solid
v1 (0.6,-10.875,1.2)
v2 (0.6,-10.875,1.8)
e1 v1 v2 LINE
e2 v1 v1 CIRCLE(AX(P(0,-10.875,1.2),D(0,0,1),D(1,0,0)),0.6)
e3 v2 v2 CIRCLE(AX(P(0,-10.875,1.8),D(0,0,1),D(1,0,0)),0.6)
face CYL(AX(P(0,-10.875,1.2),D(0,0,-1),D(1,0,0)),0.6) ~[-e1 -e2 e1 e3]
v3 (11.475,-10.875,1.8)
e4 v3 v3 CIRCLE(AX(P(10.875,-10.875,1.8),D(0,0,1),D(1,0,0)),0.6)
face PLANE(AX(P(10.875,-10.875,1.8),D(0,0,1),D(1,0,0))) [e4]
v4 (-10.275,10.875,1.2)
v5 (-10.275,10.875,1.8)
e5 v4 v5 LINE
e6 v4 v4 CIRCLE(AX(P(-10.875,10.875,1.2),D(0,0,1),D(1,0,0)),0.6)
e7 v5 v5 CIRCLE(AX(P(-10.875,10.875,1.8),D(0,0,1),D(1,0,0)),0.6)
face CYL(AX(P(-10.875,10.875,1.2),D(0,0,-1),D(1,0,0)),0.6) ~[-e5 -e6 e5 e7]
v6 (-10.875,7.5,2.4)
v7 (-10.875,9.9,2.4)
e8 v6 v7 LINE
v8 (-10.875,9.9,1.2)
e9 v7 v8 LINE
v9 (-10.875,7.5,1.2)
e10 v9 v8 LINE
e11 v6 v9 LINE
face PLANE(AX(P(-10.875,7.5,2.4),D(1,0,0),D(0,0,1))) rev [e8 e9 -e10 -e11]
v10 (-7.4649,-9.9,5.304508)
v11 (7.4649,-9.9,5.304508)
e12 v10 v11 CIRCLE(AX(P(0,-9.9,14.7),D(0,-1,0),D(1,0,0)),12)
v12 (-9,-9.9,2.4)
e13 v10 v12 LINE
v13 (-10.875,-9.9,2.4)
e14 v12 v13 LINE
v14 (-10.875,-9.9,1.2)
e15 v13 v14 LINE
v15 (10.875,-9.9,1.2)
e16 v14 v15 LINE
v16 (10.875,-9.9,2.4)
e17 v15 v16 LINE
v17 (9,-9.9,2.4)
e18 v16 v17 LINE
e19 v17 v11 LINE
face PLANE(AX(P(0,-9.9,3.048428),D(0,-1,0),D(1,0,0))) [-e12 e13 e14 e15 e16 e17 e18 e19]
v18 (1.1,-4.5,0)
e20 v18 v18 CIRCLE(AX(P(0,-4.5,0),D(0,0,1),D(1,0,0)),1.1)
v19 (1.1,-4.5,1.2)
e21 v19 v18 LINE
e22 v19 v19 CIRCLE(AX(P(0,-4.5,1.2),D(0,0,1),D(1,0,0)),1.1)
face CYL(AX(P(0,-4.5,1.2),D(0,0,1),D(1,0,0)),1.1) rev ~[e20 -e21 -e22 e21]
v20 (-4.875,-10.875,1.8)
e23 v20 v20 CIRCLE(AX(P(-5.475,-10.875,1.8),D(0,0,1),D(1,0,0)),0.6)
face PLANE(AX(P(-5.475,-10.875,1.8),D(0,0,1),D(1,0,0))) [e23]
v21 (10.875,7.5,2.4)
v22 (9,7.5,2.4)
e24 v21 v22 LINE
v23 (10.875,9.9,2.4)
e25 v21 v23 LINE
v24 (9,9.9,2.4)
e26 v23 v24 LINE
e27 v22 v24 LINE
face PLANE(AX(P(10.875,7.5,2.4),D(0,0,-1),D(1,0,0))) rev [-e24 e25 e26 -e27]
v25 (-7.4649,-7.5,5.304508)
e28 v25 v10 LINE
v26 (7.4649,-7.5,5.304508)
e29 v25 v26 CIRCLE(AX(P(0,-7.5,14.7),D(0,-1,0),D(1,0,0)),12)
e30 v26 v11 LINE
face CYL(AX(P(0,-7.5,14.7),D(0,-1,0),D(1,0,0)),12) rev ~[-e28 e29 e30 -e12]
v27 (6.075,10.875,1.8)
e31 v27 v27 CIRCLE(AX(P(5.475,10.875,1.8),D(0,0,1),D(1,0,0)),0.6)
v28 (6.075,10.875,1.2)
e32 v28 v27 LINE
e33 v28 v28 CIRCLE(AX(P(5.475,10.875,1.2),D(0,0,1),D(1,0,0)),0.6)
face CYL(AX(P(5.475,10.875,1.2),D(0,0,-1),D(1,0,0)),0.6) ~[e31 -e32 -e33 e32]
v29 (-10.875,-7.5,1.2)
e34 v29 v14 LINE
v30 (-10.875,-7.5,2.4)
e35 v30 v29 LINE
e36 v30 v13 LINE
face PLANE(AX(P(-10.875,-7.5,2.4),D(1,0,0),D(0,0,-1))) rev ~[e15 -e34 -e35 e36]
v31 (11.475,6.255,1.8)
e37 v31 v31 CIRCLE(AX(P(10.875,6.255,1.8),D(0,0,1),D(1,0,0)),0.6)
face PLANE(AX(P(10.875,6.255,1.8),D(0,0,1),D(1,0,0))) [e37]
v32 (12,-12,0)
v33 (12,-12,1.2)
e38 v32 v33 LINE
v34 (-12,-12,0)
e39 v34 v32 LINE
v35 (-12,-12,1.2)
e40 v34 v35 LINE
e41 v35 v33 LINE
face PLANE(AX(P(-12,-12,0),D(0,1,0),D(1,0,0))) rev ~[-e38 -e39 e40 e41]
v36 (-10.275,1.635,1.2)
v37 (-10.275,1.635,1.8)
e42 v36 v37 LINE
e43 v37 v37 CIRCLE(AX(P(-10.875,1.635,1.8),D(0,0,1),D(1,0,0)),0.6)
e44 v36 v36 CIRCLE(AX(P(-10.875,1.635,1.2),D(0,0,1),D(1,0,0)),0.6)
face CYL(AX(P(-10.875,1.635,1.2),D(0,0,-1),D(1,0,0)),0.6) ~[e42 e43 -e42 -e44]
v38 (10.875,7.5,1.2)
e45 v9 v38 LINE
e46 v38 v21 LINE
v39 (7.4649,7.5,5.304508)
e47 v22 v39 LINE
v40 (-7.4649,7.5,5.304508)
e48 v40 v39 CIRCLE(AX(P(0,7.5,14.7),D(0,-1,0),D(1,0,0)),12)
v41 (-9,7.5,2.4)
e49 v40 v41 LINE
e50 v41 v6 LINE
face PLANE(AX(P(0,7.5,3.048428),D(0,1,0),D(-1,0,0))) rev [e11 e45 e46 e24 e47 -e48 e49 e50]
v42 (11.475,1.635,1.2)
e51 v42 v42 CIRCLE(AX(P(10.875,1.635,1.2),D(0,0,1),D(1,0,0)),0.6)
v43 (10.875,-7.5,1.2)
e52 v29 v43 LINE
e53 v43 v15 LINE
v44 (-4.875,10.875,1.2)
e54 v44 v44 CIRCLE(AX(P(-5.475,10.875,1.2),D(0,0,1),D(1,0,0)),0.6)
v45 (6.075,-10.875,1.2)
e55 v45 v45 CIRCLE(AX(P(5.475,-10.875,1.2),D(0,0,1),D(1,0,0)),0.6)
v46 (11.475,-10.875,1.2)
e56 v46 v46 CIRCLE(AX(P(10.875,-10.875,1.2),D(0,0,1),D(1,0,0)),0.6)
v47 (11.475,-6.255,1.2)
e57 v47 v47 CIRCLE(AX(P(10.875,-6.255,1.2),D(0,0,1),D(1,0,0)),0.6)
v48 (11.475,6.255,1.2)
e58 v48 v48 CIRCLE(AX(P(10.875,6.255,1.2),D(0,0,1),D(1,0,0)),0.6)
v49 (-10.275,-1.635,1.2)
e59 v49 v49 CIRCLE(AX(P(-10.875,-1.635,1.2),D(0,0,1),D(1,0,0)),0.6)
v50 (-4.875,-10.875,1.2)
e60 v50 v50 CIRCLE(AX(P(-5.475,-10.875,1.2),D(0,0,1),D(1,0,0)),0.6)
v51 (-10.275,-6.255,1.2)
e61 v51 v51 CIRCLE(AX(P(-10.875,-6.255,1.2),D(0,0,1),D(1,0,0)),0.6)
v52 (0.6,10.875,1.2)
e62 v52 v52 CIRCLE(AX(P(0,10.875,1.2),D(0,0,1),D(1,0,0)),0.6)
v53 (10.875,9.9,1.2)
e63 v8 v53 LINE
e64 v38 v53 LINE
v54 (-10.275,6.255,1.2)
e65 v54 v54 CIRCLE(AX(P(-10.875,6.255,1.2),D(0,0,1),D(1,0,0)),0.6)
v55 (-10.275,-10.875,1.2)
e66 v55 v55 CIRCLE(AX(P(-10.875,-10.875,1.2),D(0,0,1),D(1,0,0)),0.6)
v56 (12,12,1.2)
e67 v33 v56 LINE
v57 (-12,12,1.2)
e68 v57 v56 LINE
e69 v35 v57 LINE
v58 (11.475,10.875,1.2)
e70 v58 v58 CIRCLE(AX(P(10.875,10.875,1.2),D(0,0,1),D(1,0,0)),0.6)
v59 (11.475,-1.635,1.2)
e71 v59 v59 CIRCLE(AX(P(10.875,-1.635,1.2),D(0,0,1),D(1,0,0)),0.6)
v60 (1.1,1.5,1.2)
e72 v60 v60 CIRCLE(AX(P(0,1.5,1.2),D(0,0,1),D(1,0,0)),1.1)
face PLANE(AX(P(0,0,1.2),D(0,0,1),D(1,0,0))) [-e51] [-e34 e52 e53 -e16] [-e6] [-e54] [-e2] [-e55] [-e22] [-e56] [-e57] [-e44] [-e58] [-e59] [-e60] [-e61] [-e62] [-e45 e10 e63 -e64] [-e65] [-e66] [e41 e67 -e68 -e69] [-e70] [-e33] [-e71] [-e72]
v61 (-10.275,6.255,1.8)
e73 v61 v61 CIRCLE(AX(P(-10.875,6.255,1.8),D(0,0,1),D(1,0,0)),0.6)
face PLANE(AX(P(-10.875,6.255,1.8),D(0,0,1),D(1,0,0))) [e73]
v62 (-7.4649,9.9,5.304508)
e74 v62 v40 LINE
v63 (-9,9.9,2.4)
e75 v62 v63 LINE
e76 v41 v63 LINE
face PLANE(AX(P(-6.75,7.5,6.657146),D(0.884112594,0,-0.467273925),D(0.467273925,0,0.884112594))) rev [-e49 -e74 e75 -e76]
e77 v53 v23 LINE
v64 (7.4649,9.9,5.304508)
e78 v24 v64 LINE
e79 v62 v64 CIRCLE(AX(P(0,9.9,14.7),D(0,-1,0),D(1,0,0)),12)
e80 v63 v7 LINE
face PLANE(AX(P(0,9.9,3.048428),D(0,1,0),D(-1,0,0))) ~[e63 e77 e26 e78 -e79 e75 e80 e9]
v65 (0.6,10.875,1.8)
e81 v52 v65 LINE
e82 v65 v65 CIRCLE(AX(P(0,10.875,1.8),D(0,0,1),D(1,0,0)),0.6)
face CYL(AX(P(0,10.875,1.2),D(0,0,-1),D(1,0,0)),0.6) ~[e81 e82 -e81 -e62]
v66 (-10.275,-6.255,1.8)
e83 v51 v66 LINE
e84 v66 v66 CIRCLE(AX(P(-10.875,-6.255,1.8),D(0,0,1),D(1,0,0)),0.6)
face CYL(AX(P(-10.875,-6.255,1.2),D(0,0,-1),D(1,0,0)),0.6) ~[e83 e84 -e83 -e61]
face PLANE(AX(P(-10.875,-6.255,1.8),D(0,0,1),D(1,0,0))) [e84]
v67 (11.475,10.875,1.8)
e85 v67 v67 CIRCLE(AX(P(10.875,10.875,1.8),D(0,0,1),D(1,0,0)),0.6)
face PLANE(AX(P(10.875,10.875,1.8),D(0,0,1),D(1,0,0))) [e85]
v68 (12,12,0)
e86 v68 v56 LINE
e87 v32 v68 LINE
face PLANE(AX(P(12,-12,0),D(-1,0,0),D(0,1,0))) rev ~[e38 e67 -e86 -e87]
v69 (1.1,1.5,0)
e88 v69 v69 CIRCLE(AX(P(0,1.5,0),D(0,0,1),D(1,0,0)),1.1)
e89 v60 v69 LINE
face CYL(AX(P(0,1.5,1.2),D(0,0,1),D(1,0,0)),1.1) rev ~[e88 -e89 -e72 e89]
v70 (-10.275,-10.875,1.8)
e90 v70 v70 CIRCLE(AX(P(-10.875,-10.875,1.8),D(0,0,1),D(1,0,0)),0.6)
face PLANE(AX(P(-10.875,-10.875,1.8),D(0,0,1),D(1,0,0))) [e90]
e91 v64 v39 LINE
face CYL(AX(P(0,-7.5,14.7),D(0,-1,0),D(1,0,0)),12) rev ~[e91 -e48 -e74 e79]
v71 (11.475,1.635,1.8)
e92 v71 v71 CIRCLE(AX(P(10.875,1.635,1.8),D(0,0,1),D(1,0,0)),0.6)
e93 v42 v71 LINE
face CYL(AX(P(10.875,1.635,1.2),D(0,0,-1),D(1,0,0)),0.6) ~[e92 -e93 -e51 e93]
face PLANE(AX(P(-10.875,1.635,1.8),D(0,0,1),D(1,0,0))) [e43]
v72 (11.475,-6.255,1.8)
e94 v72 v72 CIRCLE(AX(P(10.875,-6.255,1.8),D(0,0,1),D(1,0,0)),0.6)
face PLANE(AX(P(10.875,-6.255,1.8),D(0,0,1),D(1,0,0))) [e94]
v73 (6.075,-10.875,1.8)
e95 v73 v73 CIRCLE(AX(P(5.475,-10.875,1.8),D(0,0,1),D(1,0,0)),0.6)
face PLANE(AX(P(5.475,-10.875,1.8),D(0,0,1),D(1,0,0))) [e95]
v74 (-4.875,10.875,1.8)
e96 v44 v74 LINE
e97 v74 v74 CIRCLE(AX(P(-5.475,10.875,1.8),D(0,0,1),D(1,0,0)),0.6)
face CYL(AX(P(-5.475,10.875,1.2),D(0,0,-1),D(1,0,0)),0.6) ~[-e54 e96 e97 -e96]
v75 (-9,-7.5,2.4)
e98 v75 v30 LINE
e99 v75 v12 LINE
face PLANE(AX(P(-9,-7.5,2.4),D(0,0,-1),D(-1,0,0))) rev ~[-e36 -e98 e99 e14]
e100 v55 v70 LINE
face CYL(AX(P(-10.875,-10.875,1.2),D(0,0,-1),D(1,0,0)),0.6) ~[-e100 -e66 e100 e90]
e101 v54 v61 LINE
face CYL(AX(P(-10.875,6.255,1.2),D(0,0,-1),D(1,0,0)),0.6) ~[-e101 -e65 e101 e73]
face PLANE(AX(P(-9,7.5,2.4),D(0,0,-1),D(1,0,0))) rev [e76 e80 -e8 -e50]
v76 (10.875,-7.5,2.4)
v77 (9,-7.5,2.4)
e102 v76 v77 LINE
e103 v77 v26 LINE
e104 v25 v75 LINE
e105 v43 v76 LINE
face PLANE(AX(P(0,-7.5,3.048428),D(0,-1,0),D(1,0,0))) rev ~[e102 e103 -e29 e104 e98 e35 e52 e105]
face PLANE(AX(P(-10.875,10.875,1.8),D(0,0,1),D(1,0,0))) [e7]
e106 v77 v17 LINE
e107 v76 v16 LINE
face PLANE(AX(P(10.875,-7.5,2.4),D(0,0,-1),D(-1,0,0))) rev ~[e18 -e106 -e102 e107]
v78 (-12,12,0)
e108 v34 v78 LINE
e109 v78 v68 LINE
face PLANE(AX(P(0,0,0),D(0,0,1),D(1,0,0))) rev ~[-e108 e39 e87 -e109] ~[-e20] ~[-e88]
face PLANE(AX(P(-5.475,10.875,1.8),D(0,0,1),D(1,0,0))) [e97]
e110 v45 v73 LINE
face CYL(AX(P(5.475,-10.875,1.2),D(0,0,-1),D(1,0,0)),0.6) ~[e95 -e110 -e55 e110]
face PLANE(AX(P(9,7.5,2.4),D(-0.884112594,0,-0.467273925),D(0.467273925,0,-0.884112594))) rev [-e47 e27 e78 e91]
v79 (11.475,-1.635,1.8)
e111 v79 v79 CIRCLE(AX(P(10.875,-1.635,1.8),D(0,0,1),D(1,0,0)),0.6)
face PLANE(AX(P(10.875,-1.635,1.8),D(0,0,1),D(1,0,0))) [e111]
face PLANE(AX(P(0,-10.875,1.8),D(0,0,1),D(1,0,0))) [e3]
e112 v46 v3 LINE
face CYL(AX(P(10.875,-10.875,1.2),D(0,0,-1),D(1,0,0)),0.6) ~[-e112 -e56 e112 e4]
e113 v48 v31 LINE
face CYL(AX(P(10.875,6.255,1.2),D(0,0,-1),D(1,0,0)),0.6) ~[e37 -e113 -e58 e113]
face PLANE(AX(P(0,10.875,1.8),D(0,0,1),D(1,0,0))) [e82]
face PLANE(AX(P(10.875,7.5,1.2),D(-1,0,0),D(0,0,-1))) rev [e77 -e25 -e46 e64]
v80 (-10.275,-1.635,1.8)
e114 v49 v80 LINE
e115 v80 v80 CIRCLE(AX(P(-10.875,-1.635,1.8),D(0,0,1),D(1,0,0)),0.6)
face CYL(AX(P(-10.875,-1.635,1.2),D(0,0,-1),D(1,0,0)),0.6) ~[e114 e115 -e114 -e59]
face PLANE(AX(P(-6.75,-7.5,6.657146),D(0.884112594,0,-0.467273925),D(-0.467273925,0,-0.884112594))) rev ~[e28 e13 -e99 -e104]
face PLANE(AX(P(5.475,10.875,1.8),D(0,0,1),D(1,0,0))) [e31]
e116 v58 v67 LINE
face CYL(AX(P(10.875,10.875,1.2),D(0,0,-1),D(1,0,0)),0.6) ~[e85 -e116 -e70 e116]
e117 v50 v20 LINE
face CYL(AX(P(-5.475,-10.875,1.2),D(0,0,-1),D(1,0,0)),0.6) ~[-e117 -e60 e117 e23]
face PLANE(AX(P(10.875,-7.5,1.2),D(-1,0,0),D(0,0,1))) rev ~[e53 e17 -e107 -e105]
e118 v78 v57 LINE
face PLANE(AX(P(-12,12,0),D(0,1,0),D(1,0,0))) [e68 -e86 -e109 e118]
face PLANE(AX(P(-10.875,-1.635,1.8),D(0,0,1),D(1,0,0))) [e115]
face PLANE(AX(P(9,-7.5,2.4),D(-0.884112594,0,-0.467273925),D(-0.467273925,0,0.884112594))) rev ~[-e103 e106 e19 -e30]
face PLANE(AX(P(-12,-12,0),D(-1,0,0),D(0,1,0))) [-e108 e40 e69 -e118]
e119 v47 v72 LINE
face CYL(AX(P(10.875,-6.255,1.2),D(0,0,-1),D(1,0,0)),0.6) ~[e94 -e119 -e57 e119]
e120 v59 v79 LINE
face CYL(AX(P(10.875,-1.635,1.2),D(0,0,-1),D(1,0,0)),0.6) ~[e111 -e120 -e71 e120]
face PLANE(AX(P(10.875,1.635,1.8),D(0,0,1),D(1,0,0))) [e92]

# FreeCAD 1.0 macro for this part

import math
import FreeCAD as App
import Part
import Sketcher


def add_polygon(sketch, points):
    """Adds a closed chain of lines whose ends are joined by coincident constraints."""
    first, n = sketch.GeometryCount, len(points)
    for a, b in zip(points, points[1:] + points[:1]):
        sketch.addGeometry(Part.LineSegment(App.Vector(*a, 0), App.Vector(*b, 0)), False)
    for i in range(n):
        sketch.addConstraint(Sketcher.Constraint("Coincident", first + i, 2, first + (i + 1) % n, 1))

doc = App.newDocument("Part")
body = doc.addObject("PartDesign::Body", "Body")

# Sketch on XY plane
sketch1 = body.newObject("Sketcher::SketchObject", "Sketch")
sketch1.AttachmentSupport = (doc.getObject("XY_Plane"), [""])
sketch1.MapMode = "FlatFace"
add_polygon(sketch1, [(-12, 12), (-12, -12), (12, -12), (12, 12)])  # lines 0-3
sketch1.addConstraint(Sketcher.Constraint("Vertical", 0))
sketch1.addConstraint(Sketcher.Constraint("Horizontal", 1))
sketch1.addConstraint(Sketcher.Constraint("Vertical", 2))
sketch1.addConstraint(Sketcher.Constraint("Horizontal", 3))
sketch1.addConstraint(Sketcher.Constraint("Symmetric", 0, 2, 2, 2, -1, 1))
sketch1.addConstraint(Sketcher.Constraint("Equal", 3, 0))
sketch1.addConstraint(Sketcher.Constraint("DistanceX", 1, 1, 1, 2, 24.0))
pad1 = body.newObject("PartDesign::Pad", "Pad")
pad1.Profile = sketch1
pad1.Length = 1.2

# Sketch on XY plane
sketch2 = body.newObject("Sketcher::SketchObject", "Sketch001")
sketch2.AttachmentSupport = (doc.getObject("XY_Plane"), [""])
sketch2.MapMode = "FlatFace"
sketch2.AttachmentOffset = App.Placement(App.Vector(0, 0, 1.2), App.Rotation())
sketch2.addGeometry(Part.Circle(App.Vector(-10.9, 10.9, 0), App.Vector(0, 0, 1), 0.6), False)
sketch2.addGeometry(Part.Circle(App.Vector(-10.9, 6.3, 0), App.Vector(0, 0, 1), 0.6), False)
sketch2.addGeometry(Part.Circle(App.Vector(-10.9, 1.6, 0), App.Vector(0, 0, 1), 0.6), False)
sketch2.addGeometry(Part.Circle(App.Vector(-10.9, -1.6, 0), App.Vector(0, 0, 1), 0.6), False)
sketch2.addGeometry(Part.Circle(App.Vector(-10.9, -6.3, 0), App.Vector(0, 0, 1), 0.6), False)
sketch2.addGeometry(Part.Circle(App.Vector(-10.9, -10.9, 0), App.Vector(0, 0, 1), 0.6), False)
sketch2.addGeometry(Part.Circle(App.Vector(-5.5, 10.9, 0), App.Vector(0, 0, 1), 0.6), False)
sketch2.addGeometry(Part.Circle(App.Vector(0, 10.9, 0), App.Vector(0, 0, 1), 0.6), False)
sketch2.addGeometry(Part.Circle(App.Vector(5.5, 10.9, 0), App.Vector(0, 0, 1), 0.6), False)
sketch2.addGeometry(Part.Circle(App.Vector(10.9, 10.9, 0), App.Vector(0, 0, 1), 0.6), False)
sketch2.addGeometry(Part.Circle(App.Vector(10.9, 6.3, 0), App.Vector(0, 0, 1), 0.6), False)
sketch2.addGeometry(Part.Circle(App.Vector(10.9, 1.6, 0), App.Vector(0, 0, 1), 0.6), False)
sketch2.addGeometry(Part.Circle(App.Vector(10.9, -1.6, 0), App.Vector(0, 0, 1), 0.6), False)
sketch2.addGeometry(Part.Circle(App.Vector(10.9, -6.3, 0), App.Vector(0, 0, 1), 0.6), False)
sketch2.addGeometry(Part.Circle(App.Vector(10.9, -10.9, 0), App.Vector(0, 0, 1), 0.6), False)
sketch2.addGeometry(Part.Circle(App.Vector(0, -10.9, 0), App.Vector(0, 0, 1), 0.6), False)
sketch2.addGeometry(Part.Circle(App.Vector(5.5, -10.9, 0), App.Vector(0, 0, 1), 0.6), False)
sketch2.addGeometry(Part.Circle(App.Vector(-5.5, -10.9, 0), App.Vector(0, 0, 1), 0.6), False)
sketch2.addConstraint(Sketcher.Constraint("Equal", 0, 1))
sketch2.addConstraint(Sketcher.Constraint("Equal", 1, 2))
sketch2.addConstraint(Sketcher.Constraint("Equal", 2, 3))
sketch2.addConstraint(Sketcher.Constraint("Equal", 3, 4))
sketch2.addConstraint(Sketcher.Constraint("Equal", 4, 5))
sketch2.addConstraint(Sketcher.Constraint("Equal", 5, 6))
sketch2.addConstraint(Sketcher.Constraint("Equal", 6, 7))
sketch2.addConstraint(Sketcher.Constraint("Equal", 7, 8))
sketch2.addConstraint(Sketcher.Constraint("Equal", 8, 9))
sketch2.addConstraint(Sketcher.Constraint("Equal", 9, 10))
sketch2.addConstraint(Sketcher.Constraint("Equal", 10, 11))
sketch2.addConstraint(Sketcher.Constraint("Equal", 11, 12))
sketch2.addConstraint(Sketcher.Constraint("Equal", 12, 13))
sketch2.addConstraint(Sketcher.Constraint("Equal", 13, 14))
sketch2.addConstraint(Sketcher.Constraint("Equal", 14, 15))
sketch2.addConstraint(Sketcher.Constraint("Equal", 15, 16))
sketch2.addConstraint(Sketcher.Constraint("Equal", 16, 17))
sketch2.addConstraint(Sketcher.Constraint("Symmetric", 5, 3, 9, 3, -1, 1))
sketch2.addConstraint(Sketcher.Constraint("Symmetric", 4, 3, 10, 3, -1, 1))
sketch2.addConstraint(Sketcher.Constraint("Symmetric", 3, 3, 11, 3, -1, 1))
sketch2.addConstraint(Sketcher.Constraint("Symmetric", 2, 3, 12, 3, -1, 1))
sketch2.addConstraint(Sketcher.Constraint("Symmetric", 1, 3, 13, 3, -1, 1))
sketch2.addConstraint(Sketcher.Constraint("Symmetric", 0, 3, 14, 3, -1, 1))
sketch2.addConstraint(Sketcher.Constraint("Symmetric", 7, 3, 15, 3, -1, 1))
sketch2.addConstraint(Sketcher.Constraint("Symmetric", 6, 3, 16, 3, -1, 1))
sketch2.addConstraint(Sketcher.Constraint("Symmetric", 8, 3, 17, 3, -1, 1))
sketch2.addConstraint(Sketcher.Constraint("Symmetric", 6, 3, 8, 3, -2))
sketch2.addConstraint(Sketcher.Constraint("Symmetric", 0, 3, 9, 3, -2))
sketch2.addConstraint(Sketcher.Constraint("Symmetric", 1, 3, 10, 3, -2))
sketch2.addConstraint(Sketcher.Constraint("Symmetric", 2, 3, 11, 3, -2))
sketch2.addConstraint(Sketcher.Constraint("PointOnObject", 7, 3, -2))
sketch2.addConstraint(Sketcher.Constraint("Horizontal", 0, 3, 6, 3))
sketch2.addConstraint(Sketcher.Constraint("Horizontal", 6, 3, 7, 3))
sketch2.addConstraint(Sketcher.Constraint("Vertical", 0, 3, 1, 3))
sketch2.addConstraint(Sketcher.Constraint("Vertical", 1, 3, 2, 3))
sketch2.addConstraint(Sketcher.Constraint("Diameter", 0, 1.2))
sketch2.addConstraint(Sketcher.Constraint("DistanceX", 0, 3, 6, 3, 5.4))
sketch2.addConstraint(Sketcher.Constraint("DistanceY", 1, 3, 0, 3, 4.62))
sketch2.addConstraint(Sketcher.Constraint("DistanceY", 2, 3, 1, 3, 4.62))
sketch2.addConstraint(Sketcher.Constraint("DistanceY", 3, 3, 2, 3, 3.27))
sketch2.addConstraint(Sketcher.Constraint("DistanceX", 6, 3, 8, 3, 10.95))
pad2 = body.newObject("PartDesign::Pad", "Pad001")
pad2.Profile = sketch2
pad2.Length = 0.6

# Sketch on XZ plane
sketch3 = body.newObject("Sketcher::SketchObject", "Sketch002")
sketch3.AttachmentSupport = (doc.getObject("XZ_Plane"), [""])
sketch3.MapMode = "FlatFace"
sketch3.AttachmentOffset = App.Placement(App.Vector(0, 0, 7.5), App.Rotation())
sketch3.addGeometry(Part.ArcOfCircle(Part.Circle(App.Vector(0, 14.7, 0), App.Vector(0, 0, 1), 10.5), math.radians(-130), math.radians(-50)), False)
sketch3.addGeometry(Part.LineSegment(App.Vector(-6.8, 6.7, 0), App.Vector(-9, 2.4, 0)), False)
sketch3.addGeometry(Part.LineSegment(App.Vector(-9, 2.4, 0), App.Vector(-10.9, 2.4, 0)), False)
sketch3.addGeometry(Part.LineSegment(App.Vector(-10.9, 2.4, 0), App.Vector(-10.9, 1.2, 0)), False)
sketch3.addGeometry(Part.LineSegment(App.Vector(-10.9, 1.2, 0), App.Vector(10.9, 1.2, 0)), False)
sketch3.addGeometry(Part.LineSegment(App.Vector(10.9, 1.2, 0), App.Vector(10.9, 2.4, 0)), False)
sketch3.addGeometry(Part.LineSegment(App.Vector(10.9, 2.4, 0), App.Vector(9, 2.4, 0)), False)
sketch3.addGeometry(Part.LineSegment(App.Vector(9, 2.4, 0), App.Vector(6.8, 6.7, 0)), False)
sketch3.addConstraint(Sketcher.Constraint("Coincident", 0, 1, 1, 1))
sketch3.addConstraint(Sketcher.Constraint("Coincident", 1, 2, 2, 1))
sketch3.addConstraint(Sketcher.Constraint("Coincident", 2, 2, 3, 1))
sketch3.addConstraint(Sketcher.Constraint("Coincident", 3, 2, 4, 1))
sketch3.addConstraint(Sketcher.Constraint("Coincident", 4, 2, 5, 1))
sketch3.addConstraint(Sketcher.Constraint("Coincident", 5, 2, 6, 1))
sketch3.addConstraint(Sketcher.Constraint("Coincident", 6, 2, 7, 1))
sketch3.addConstraint(Sketcher.Constraint("Coincident", 7, 2, 0, 2))
sketch3.addConstraint(Sketcher.Constraint("Horizontal", 2))
sketch3.addConstraint(Sketcher.Constraint("Vertical", 3))
sketch3.addConstraint(Sketcher.Constraint("Horizontal", 4))
sketch3.addConstraint(Sketcher.Constraint("Vertical", 5))
sketch3.addConstraint(Sketcher.Constraint("Horizontal", 6))
sketch3.addConstraint(Sketcher.Constraint("Symmetric", 2, 2, 5, 2, -2))
sketch3.addConstraint(Sketcher.Constraint("Symmetric", 0, 1, 7, 2, -2))
sketch3.addConstraint(Sketcher.Constraint("Equal", 2, 6))
sketch3.addConstraint(Sketcher.Constraint("Radius", 0, 10.5))
sketch3.addConstraint(Sketcher.Constraint("DistanceY", 3, 2, 3, 1, 1.2))
sketch3.addConstraint(Sketcher.Constraint("DistanceX", 1, 2, -1, 1, 9.0))
sketch3.addConstraint(Sketcher.Constraint("DistanceX", 4, 1, 4, 2, 21.75))
sketch3.addConstraint(Sketcher.Constraint("DistanceY", -1, 1, 0, 3, 14.7))
sketch3.addConstraint(Sketcher.Constraint("DistanceY", -1, 1, 1, 2, 2.4))
sketch3.addConstraint(Sketcher.Constraint("DistanceX", 0, 1, 7, 2, 13.5))
pad3 = body.newObject("PartDesign::Pad", "Pad002")
pad3.Profile = sketch3
pad3.Length = 2.4
body2 = doc.addObject("PartDesign::Body", "Body001")
doc.recompute()

body2.BaseFeature = body
doc.recompute()

mirroring = doc.addObject("Part::Mirroring", "Mirroring")
mirroring.Source = body
mirroring.Base = App.Vector(0, 0, 0)
mirroring.Normal = App.Vector(0, -1, 0)
body3 = doc.addObject("PartDesign::Body", "Body002")
body3.BaseFeature = mirroring
boolean = body2.newObject("PartDesign::Boolean", "Boolean")
boolean.Type = "Fuse"
boolean.addObjects([body3])
doc.recompute()

# Sketch on XZ plane
sketch4 = body2.newObject("Sketcher::SketchObject", "Sketch003")
sketch4.AttachmentSupport = (doc.getObject("XZ_Plane001"), [""])
sketch4.MapMode = "FlatFace"
sketch4.AttachmentOffset = App.Placement(App.Vector(0, 0, 7.5), App.Rotation())
sketch4.addGeometry(Part.Circle(App.Vector(0, 15, 0), App.Vector(0, 0, 1), 12), False)
sketch4.addConstraint(Sketcher.Constraint("PointOnObject", 0, 3, -2))
sketch4.addConstraint(Sketcher.Constraint("Diameter", 0, 24.0))
sketch4.addConstraint(Sketcher.Constraint("DistanceY", -1, 1, 0, 3, 14.7))
pocket1 = body2.newObject("PartDesign::Pocket", "Pocket")
pocket1.Profile = sketch4
pocket1.Length = 37.5
pocket1.Midplane = True

# Sketch on XY plane
sketch5 = body2.newObject("Sketcher::SketchObject", "Sketch004")
sketch5.AttachmentSupport = (doc.getObject("XY_Plane001"), [""])
sketch5.MapMode = "FlatFace"
sketch5.AttachmentOffset = App.Placement(App.Vector(0, 0, 1.2), App.Rotation())
sketch5.addGeometry(Part.Circle(App.Vector(0, -4.5, 0), App.Vector(0, 0, 1), 1.1), False)
sketch5.addGeometry(Part.Circle(App.Vector(0, 1.5, 0), App.Vector(0, 0, 1), 1.1), False)
sketch5.addConstraint(Sketcher.Constraint("Equal", 0, 1))
sketch5.addConstraint(Sketcher.Constraint("PointOnObject", 0, 3, -2))
sketch5.addConstraint(Sketcher.Constraint("PointOnObject", 1, 3, -2))
sketch5.addConstraint(Sketcher.Constraint("Diameter", 0, 2.2))
sketch5.addConstraint(Sketcher.Constraint("DistanceY", 0, 3, 1, 3, 6.0))
sketch5.addConstraint(Sketcher.Constraint("DistanceY", 0, 3, -1, 1, 4.5))
pocket2 = body2.newObject("PartDesign::Pocket", "Pocket001")
pocket2.Profile = sketch5
pocket2.Type = "ThroughAll"
mirroring.Visibility = False

doc.recompute()
